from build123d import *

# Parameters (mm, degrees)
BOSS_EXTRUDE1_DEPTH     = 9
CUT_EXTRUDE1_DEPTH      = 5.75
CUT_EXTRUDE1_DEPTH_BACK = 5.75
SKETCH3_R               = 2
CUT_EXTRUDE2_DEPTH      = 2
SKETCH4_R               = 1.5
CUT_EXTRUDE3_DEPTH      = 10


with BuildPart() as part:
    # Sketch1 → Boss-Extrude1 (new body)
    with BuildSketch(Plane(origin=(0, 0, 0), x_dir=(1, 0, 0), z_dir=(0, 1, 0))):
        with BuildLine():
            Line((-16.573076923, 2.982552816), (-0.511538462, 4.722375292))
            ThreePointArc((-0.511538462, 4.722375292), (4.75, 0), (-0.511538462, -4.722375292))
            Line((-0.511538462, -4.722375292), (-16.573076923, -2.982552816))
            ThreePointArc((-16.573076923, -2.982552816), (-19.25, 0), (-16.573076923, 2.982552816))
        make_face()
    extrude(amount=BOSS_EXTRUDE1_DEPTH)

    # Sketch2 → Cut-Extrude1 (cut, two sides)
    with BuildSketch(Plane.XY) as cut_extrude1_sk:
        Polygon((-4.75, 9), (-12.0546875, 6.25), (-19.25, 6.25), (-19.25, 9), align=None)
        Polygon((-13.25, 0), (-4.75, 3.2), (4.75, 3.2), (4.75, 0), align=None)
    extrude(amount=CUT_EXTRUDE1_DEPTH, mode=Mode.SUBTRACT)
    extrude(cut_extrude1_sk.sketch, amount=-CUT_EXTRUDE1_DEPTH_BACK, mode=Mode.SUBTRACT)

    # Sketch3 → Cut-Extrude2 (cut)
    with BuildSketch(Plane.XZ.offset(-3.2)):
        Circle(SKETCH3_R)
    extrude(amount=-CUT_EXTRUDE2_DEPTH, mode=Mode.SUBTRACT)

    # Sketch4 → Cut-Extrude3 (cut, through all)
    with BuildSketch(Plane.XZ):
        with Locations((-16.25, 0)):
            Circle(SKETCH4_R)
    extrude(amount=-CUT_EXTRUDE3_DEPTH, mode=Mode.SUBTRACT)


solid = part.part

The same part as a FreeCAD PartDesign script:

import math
import FreeCAD as App
import Part
import Sketcher

V = App.Vector
Q = App.Units.Quantity


def add_polygon(sketch, points):
    """Adds a closed chain of lines whose ends are joined by coincident constraints."""
    first, n = sketch.GeometryCount, len(points)
    for a, b in zip(points, points[1:] + points[:1]):
        sketch.addGeometry(Part.LineSegment(App.Vector(*a, 0), App.Vector(*b, 0)), False)
    for i in range(n):
        sketch.addConstraint(Sketcher.Constraint("Coincident", first + i, 2, first + (i + 1) % n, 1))

doc = App.newDocument("Part")
body = doc.addObject("PartDesign::Body", "Body")

# Sketch on XZ plane
sketch1 = body.newObject("Sketcher::SketchObject", "Sketch")
sketch1.AttachmentSupport = (doc.getObject("XZ_Plane"), [""])
sketch1.MapMode = "FlatFace"
sketch1.addGeometry(Part.LineSegment(V(-0.5, -4.7, 0), V(-16.6, -3, 0)), False)
sketch1.addGeometry(Part.ArcOfCircle(Part.Circle(V(-16.2, 0, 0), V(0, 0, 1), 3), math.radians(96), math.radians(264)), False)
sketch1.addGeometry(Part.LineSegment(V(-16.6, 3, 0), V(-0.5, 4.7, 0)), False)
sketch1.addGeometry(Part.ArcOfCircle(Part.Circle(V(0, 0, 0), V(0, 0, 1), 4.8), math.radians(-96), math.radians(96)), False)
sketch1.addConstraint(Sketcher.Constraint("Tangent", 0, 2, 1, 2))
sketch1.addConstraint(Sketcher.Constraint("Tangent", 1, 1, 2, 1))
sketch1.addConstraint(Sketcher.Constraint("Tangent", 2, 2, 3, 2))
sketch1.addConstraint(Sketcher.Constraint("Tangent", 3, 1, 0, 1))
sketch1.addConstraint(Sketcher.Constraint("Coincident", 3, 3, -1, 1))
sketch1.addConstraint(Sketcher.Constraint("PointOnObject", 1, 3, -1))
sketch1.addConstraint(Sketcher.Constraint("Radius", 1, Q("3 mm")))
sketch1.addConstraint(Sketcher.Constraint("Radius", 3, Q("4.75 mm")))
sketch1.addConstraint(Sketcher.Constraint("DistanceX", 1, 3, -1, 1, Q("16.25 mm")))
pad1 = body.newObject("PartDesign::Pad", "Pad")
pad1.Profile = sketch1
pad1.Length = 9
pad1.Reversed = True

# Sketch on XY plane
sketch2 = body.newObject("Sketcher::SketchObject", "Sketch001")
sketch2.AttachmentSupport = (doc.getObject("XY_Plane"), [""])
sketch2.MapMode = "FlatFace"
add_polygon(sketch2, [(-12.1, 6.2), (-4.8, 9), (-19.2, 9), (-19.2, 6.2)])  # lines 0-3
add_polygon(sketch2, [(-4.8, 3.2), (-13.2, 0), (4.8, 0), (4.8, 3.2)])  # lines 4-7
sketch2.addConstraint(Sketcher.Constraint("Horizontal", 1))
sketch2.addConstraint(Sketcher.Constraint("Vertical", 2))
sketch2.addConstraint(Sketcher.Constraint("Horizontal", 3))
sketch2.addConstraint(Sketcher.Constraint("Horizontal", 5))
sketch2.addConstraint(Sketcher.Constraint("Vertical", 6))
sketch2.addConstraint(Sketcher.Constraint("Horizontal", 7))
sketch2.addConstraint(Sketcher.Constraint("PointOnObject", 4, 2, -1))
sketch2.addConstraint(Sketcher.Constraint("Parallel", 0, 4))
sketch2.addConstraint(Sketcher.Constraint("Vertical", 0, 2, 7, 2))
sketch2.addConstraint(Sketcher.Constraint("DistanceX", 5, 1, 5, 2, Q("18 mm")))
sketch2.addConstraint(Sketcher.Constraint("DistanceX", 1, 2, 1, 1, Q("14.5 mm")))
sketch2.addConstraint(Sketcher.Constraint("DistanceX", 7, 2, 7, 1, Q("9.5 mm")))
sketch2.addConstraint(Sketcher.Constraint("DistanceY", 6, 1, 6, 2, Q("3.2 mm")))
sketch2.addConstraint(Sketcher.Constraint("DistanceY", -1, 1, 0, 2, Q("9 mm")))
sketch2.addConstraint(Sketcher.Constraint("DistanceY", 2, 2, 2, 1, Q("2.75 mm")))
sketch2.addConstraint(Sketcher.Constraint("DistanceX", 0, 2, -1, 1, Q("4.75 mm")))
pocket1 = body.newObject("PartDesign::Pocket", "Pocket")
pocket1.Profile = sketch2
pocket1.Type = "ThroughAll"
pocket1.Midplane = True

# Sketch on XZ plane
sketch3 = body.newObject("Sketcher::SketchObject", "Sketch002")
sketch3.AttachmentSupport = (doc.getObject("XZ_Plane"), [""])
sketch3.MapMode = "FlatFace"
sketch3.AttachmentOffset = App.Placement(V(0, 0, -3.2), App.Rotation())
sketch3.addGeometry(Part.Circle(V(0, 0, 0), V(0, 0, 1), 2), False)
sketch3.addConstraint(Sketcher.Constraint("Coincident", 0, 3, -1, 1))
sketch3.addConstraint(Sketcher.Constraint("Diameter", 0, Q("4 mm")))
pocket2 = body.newObject("PartDesign::Pocket", "Pocket001")
pocket2.Profile = sketch3
pocket2.Length = 2

# Sketch on XZ plane
sketch4 = body.newObject("Sketcher::SketchObject", "Sketch003")
sketch4.AttachmentSupport = (doc.getObject("XZ_Plane"), [""])
sketch4.MapMode = "FlatFace"
sketch4.addGeometry(Part.Circle(V(-16.2, 0, 0), V(0, 0, 1), 1.5), False)
sketch4.addConstraint(Sketcher.Constraint("PointOnObject", 0, 3, -1))
sketch4.addConstraint(Sketcher.Constraint("Diameter", 0, Q("3 mm")))
sketch4.addConstraint(Sketcher.Constraint("DistanceX", 0, 3, -1, 1, Q("16.25 mm")))
pocket3 = body.newObject("PartDesign::Pocket", "Pocket002")
pocket3.Profile = sketch4
pocket3.Type = "ThroughAll"

doc.recompute()
